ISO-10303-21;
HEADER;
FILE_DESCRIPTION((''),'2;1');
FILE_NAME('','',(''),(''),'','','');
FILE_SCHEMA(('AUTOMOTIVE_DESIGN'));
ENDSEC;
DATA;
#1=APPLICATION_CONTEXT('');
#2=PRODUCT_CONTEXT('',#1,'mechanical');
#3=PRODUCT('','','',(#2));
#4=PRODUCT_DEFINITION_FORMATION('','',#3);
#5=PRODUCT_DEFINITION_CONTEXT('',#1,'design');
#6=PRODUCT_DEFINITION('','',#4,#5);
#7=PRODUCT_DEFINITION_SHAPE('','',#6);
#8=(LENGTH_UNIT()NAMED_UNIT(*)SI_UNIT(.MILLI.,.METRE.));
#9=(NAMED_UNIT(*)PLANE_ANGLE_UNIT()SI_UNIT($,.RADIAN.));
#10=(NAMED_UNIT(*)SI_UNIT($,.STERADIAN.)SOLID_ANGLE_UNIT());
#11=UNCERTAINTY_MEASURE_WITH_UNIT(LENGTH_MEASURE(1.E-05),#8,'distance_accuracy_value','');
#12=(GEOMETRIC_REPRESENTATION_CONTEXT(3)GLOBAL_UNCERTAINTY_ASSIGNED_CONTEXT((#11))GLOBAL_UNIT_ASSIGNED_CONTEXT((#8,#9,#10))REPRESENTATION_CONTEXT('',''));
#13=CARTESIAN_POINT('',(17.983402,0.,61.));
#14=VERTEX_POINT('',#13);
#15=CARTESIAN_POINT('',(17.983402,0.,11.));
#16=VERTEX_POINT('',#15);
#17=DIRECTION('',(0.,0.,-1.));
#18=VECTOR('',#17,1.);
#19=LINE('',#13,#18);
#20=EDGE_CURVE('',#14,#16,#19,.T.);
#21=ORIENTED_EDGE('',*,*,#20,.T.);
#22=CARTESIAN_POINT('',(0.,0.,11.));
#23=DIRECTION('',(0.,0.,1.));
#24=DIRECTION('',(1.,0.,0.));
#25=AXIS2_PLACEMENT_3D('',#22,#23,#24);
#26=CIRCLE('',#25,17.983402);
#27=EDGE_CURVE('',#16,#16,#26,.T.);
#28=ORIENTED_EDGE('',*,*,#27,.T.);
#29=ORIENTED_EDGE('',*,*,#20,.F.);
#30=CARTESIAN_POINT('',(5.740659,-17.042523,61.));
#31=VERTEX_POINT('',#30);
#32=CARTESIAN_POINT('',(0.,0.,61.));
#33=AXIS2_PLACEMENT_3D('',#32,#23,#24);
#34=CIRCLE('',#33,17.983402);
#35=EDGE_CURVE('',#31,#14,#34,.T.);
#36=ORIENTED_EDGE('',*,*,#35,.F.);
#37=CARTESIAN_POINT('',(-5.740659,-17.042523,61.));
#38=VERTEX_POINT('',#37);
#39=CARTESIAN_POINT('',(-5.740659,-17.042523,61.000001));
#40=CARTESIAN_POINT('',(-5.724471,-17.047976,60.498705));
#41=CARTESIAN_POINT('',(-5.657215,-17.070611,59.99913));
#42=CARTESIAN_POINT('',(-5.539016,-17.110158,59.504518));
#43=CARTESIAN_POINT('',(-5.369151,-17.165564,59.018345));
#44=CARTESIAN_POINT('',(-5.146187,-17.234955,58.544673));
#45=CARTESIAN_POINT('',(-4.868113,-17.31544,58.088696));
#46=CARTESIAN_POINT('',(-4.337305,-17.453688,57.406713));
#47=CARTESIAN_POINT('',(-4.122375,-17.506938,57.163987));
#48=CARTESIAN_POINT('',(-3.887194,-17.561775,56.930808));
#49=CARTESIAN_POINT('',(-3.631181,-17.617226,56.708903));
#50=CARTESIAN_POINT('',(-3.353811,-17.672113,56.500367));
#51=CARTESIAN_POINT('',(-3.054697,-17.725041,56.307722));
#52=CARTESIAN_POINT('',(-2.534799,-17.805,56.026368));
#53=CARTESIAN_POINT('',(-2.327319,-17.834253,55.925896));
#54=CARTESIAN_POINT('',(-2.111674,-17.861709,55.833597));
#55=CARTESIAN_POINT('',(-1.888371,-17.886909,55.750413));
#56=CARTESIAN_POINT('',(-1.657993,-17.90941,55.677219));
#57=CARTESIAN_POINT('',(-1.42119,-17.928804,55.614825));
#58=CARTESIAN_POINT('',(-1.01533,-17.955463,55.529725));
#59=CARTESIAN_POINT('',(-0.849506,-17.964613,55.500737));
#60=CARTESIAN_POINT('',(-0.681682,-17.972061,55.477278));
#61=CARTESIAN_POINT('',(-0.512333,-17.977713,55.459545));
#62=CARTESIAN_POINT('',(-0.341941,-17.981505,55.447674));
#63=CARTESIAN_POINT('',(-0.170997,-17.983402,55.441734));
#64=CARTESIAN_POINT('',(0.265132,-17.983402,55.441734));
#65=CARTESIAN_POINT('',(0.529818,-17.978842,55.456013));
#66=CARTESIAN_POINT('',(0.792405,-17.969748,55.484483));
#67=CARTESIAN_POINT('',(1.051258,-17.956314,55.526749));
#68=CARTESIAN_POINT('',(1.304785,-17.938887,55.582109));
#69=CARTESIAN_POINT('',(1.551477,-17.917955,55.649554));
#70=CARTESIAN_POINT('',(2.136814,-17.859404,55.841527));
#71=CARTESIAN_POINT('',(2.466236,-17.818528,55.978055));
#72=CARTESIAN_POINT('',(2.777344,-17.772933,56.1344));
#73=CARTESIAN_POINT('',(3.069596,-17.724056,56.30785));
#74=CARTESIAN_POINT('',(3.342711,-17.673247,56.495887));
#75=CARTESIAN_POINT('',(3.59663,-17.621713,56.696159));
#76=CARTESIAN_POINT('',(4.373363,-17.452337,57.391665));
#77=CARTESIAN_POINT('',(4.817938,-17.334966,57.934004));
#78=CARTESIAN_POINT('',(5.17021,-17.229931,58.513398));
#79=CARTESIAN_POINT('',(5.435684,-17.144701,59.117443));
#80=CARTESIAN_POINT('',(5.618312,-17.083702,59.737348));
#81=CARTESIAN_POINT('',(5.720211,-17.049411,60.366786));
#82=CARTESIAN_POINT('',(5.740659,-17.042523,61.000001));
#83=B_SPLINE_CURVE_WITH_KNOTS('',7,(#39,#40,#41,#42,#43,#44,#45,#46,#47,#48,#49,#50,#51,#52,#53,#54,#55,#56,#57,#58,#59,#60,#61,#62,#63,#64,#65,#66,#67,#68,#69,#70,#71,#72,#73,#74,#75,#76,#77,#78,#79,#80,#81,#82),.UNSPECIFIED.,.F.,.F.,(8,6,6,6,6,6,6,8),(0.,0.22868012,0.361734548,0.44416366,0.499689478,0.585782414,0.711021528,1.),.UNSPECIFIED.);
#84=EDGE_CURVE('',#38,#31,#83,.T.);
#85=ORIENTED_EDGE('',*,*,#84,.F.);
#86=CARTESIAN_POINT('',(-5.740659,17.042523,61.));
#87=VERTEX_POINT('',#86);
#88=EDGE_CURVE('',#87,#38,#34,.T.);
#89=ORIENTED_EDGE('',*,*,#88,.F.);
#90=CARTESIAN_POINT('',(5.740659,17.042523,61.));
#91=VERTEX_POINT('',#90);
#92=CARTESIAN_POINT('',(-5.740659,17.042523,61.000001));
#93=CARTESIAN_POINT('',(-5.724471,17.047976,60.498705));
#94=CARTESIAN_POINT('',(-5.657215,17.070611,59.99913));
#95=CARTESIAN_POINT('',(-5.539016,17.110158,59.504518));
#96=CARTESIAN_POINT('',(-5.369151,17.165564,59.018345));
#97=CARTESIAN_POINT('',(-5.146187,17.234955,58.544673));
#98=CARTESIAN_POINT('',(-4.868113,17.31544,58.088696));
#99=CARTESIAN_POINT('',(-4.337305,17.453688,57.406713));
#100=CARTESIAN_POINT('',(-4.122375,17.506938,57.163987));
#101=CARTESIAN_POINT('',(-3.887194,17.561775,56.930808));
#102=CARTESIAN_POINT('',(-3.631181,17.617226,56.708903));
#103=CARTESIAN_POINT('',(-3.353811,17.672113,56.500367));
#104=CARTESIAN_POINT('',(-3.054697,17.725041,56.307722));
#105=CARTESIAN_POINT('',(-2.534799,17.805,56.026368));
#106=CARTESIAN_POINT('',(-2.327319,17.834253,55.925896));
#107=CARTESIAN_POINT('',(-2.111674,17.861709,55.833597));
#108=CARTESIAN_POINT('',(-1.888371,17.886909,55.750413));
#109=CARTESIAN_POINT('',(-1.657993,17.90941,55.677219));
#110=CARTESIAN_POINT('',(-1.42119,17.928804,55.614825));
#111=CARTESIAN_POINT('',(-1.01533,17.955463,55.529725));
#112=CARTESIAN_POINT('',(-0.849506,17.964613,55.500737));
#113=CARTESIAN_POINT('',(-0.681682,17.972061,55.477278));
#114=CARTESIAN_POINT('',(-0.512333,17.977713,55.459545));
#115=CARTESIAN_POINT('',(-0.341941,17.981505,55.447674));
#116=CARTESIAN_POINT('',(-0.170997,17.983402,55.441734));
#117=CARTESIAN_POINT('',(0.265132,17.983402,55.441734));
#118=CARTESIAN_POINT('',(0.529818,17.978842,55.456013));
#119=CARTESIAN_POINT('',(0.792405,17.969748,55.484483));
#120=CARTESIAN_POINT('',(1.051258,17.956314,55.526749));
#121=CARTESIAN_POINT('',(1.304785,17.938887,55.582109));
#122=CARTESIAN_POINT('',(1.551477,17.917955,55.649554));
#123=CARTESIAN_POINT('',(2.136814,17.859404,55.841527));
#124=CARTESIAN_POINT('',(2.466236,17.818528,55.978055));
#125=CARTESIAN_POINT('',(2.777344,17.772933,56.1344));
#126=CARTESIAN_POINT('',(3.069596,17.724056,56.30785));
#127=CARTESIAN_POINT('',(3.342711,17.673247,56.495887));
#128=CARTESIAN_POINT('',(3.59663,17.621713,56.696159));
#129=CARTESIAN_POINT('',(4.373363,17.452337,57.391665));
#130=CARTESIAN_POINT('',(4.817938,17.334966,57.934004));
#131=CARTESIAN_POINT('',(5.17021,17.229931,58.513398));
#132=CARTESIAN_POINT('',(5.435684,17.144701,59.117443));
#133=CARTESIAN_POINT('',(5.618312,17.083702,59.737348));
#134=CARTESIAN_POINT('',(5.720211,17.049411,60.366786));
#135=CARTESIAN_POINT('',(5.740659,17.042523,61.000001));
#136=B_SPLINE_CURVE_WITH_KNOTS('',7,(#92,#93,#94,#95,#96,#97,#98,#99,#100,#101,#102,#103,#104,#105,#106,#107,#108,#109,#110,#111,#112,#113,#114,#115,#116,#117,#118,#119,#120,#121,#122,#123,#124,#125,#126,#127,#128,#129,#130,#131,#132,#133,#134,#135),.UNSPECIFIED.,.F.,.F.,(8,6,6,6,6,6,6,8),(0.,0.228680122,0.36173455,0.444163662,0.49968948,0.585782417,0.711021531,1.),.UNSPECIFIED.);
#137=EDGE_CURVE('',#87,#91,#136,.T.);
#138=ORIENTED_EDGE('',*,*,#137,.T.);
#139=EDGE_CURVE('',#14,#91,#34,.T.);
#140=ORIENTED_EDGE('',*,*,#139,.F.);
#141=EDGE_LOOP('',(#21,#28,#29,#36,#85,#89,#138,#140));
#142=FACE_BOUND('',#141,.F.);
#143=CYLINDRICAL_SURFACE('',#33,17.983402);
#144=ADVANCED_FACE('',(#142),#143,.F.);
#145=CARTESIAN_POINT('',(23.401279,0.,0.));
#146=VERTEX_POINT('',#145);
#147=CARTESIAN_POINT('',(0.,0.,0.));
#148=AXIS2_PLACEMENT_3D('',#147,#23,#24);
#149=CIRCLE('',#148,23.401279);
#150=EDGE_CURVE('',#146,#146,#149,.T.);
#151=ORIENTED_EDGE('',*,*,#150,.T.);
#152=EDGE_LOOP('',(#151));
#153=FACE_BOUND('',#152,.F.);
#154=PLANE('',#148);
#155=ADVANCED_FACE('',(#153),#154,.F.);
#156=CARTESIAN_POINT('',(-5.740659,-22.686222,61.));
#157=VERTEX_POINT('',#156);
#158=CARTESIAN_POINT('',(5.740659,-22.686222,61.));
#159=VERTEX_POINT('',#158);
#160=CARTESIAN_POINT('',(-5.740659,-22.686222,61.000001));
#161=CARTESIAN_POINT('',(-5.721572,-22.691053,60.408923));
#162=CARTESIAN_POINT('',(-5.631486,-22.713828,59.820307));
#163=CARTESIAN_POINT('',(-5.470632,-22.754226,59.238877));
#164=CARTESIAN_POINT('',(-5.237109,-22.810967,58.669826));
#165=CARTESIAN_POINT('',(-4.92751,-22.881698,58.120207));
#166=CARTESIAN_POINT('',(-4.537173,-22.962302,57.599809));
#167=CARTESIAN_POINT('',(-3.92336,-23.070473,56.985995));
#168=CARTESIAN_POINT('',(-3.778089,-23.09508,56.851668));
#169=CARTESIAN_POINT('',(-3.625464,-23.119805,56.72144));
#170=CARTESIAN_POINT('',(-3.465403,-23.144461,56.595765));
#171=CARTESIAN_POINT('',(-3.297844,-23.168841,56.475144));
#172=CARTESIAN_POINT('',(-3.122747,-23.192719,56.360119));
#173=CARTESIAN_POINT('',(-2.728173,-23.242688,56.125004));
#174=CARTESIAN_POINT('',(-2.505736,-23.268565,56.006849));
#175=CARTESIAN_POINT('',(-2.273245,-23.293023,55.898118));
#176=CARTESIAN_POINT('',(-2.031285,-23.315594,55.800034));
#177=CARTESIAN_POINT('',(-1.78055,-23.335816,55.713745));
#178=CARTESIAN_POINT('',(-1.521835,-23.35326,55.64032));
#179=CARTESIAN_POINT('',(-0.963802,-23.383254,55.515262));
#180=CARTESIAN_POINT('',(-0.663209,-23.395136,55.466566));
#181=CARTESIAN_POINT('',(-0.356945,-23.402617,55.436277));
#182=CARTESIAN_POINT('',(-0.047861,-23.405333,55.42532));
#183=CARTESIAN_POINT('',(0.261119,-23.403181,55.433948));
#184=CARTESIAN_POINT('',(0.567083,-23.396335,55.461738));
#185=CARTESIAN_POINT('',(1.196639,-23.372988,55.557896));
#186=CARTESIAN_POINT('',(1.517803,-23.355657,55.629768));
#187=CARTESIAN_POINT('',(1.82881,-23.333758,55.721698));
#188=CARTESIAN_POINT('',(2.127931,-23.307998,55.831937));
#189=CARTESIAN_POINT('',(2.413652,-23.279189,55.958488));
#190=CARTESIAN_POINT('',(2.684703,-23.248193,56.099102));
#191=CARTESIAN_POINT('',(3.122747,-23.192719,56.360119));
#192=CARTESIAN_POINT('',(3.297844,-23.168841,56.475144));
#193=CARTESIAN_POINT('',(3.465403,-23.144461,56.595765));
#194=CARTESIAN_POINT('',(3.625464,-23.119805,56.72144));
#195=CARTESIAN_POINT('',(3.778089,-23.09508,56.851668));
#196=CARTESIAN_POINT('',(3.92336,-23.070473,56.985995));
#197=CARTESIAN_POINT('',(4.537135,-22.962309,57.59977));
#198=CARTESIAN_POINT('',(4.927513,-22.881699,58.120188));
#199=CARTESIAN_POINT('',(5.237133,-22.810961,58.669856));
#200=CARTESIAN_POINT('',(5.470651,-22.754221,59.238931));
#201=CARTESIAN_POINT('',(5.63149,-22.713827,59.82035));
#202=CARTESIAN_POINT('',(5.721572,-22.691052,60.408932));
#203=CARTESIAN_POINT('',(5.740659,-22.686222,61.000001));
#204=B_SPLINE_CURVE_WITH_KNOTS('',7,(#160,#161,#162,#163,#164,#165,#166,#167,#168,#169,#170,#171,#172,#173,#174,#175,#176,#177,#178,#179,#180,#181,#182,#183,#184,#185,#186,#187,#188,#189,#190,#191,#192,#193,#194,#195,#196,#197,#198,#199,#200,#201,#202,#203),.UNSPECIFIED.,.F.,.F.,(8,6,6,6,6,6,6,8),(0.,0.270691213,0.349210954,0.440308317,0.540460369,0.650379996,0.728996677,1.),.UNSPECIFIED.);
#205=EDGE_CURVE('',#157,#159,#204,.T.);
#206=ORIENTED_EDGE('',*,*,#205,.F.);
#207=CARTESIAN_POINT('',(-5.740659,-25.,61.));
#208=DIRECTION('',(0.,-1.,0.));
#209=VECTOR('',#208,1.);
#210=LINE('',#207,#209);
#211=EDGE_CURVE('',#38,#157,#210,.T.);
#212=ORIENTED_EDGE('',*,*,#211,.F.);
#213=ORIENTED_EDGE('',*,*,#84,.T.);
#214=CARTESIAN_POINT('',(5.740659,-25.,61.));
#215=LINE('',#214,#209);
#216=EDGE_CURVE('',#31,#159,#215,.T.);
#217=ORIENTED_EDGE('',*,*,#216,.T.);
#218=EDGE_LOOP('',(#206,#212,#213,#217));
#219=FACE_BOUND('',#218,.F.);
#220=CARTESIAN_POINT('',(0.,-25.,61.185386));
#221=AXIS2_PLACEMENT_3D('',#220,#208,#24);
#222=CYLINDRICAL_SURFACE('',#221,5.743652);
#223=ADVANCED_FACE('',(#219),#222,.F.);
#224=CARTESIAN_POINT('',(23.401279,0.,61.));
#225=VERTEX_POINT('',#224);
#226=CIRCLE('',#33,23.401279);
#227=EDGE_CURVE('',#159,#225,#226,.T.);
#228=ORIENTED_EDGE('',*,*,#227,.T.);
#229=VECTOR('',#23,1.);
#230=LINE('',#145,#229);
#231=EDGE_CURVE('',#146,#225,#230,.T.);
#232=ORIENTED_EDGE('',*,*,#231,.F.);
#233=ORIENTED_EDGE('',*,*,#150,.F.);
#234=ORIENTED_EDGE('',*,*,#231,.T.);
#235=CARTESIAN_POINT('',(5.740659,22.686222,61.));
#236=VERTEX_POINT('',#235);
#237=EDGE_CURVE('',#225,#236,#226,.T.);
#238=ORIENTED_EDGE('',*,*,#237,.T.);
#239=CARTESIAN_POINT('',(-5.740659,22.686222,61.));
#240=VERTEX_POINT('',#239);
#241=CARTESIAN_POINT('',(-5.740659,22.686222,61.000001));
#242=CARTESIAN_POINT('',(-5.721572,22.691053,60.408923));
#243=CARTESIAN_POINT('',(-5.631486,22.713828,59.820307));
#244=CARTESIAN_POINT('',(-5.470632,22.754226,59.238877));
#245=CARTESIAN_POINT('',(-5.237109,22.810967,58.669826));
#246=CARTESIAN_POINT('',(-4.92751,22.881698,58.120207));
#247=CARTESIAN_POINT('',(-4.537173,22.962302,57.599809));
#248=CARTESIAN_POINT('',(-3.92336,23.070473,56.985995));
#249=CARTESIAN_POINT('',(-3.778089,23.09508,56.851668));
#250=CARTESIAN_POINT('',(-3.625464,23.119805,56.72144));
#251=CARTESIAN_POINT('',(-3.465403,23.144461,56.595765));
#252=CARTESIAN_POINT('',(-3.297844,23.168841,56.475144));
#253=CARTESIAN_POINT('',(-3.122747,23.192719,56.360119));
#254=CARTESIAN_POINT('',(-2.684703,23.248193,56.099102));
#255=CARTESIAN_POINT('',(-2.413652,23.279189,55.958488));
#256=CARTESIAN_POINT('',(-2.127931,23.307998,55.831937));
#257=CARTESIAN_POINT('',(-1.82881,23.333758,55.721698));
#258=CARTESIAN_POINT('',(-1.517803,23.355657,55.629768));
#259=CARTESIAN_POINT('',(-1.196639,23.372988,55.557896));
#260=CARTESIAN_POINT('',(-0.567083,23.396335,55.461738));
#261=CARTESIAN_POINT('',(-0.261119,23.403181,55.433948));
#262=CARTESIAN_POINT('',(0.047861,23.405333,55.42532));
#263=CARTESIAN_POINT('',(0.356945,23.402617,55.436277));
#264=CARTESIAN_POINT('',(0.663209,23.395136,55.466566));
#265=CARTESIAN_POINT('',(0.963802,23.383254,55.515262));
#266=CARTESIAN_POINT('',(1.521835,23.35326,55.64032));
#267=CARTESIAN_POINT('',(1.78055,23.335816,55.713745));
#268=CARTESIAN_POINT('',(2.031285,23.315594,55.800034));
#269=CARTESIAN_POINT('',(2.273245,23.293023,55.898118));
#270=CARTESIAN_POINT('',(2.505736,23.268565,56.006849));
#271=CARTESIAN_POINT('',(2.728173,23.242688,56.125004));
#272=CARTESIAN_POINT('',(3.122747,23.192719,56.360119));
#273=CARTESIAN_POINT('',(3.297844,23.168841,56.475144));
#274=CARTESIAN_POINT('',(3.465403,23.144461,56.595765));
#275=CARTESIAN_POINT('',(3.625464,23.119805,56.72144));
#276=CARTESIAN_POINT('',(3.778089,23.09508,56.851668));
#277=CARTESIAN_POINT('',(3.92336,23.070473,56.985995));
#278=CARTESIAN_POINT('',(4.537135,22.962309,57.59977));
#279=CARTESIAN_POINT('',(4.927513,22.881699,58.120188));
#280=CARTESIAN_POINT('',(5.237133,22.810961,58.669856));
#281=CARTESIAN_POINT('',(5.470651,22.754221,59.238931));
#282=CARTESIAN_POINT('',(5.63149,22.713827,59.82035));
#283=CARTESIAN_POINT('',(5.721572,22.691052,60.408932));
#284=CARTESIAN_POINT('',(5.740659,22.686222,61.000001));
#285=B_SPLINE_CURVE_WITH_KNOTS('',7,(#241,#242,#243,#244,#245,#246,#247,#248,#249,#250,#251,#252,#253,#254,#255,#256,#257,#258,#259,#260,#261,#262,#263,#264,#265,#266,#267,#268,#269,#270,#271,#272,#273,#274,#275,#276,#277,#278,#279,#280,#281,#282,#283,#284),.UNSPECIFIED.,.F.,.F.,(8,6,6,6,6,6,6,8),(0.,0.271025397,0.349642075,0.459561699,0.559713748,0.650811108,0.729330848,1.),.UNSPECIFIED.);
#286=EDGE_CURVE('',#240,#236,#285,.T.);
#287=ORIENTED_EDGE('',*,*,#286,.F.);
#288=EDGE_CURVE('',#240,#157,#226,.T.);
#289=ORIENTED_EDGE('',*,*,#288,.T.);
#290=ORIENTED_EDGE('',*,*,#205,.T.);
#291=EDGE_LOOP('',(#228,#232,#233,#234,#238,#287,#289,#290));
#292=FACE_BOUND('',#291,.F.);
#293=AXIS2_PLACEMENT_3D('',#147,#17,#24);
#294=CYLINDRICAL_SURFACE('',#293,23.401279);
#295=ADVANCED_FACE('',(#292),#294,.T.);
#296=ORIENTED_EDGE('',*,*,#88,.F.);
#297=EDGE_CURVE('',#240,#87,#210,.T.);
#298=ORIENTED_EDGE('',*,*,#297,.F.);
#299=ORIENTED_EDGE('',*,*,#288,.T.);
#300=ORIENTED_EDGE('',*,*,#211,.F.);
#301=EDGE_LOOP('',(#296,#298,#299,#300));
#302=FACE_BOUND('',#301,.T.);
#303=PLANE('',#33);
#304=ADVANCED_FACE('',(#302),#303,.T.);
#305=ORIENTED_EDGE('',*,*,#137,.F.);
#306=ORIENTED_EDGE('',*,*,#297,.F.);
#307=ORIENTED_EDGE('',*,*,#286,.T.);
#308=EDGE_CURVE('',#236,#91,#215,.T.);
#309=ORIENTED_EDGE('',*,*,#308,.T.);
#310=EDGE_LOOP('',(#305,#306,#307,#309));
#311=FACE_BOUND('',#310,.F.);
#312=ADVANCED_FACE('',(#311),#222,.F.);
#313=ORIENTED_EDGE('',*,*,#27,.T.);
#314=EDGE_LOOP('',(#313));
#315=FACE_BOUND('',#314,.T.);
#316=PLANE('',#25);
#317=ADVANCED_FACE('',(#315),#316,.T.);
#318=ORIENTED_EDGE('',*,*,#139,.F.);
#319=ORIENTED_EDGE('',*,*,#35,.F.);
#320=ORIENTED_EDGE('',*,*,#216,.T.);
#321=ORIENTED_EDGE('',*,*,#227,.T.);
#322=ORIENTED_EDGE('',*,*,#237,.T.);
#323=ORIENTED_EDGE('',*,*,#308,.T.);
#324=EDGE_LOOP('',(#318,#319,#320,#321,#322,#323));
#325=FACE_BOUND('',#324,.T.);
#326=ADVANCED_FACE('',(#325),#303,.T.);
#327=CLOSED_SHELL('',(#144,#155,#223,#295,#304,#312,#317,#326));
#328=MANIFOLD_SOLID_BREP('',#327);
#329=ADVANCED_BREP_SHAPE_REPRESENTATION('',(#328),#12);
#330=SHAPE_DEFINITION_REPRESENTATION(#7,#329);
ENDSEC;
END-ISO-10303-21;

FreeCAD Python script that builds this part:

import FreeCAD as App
import Part
import Sketcher

doc = App.newDocument("Part")
body = doc.addObject("PartDesign::Body", "Body")

# Sketch on XY plane
sketch1 = body.newObject("Sketcher::SketchObject", "Sketch")
sketch1.AttachmentSupport = (doc.getObject("XY_Plane"), [""])
sketch1.MapMode = "FlatFace"
sketch1.addGeometry(Part.Circle(App.Vector(0, 0, 0), App.Vector(0, 0, 1), 23.401279), False)
sketch1.addConstraint(Sketcher.Constraint("Coincident", 0, 3, -1, 1))
sketch1.addConstraint(Sketcher.Constraint("Diameter", 0, 46.802558))
pad1 = body.newObject("PartDesign::Pad", "Pad")
pad1.Profile = sketch1
pad1.Length = 61

# Sketch on XY plane
sketch2 = body.newObject("Sketcher::SketchObject", "Sketch001")
sketch2.AttachmentSupport = (doc.getObject("XY_Plane"), [""])
sketch2.MapMode = "FlatFace"
sketch2.AttachmentOffset = App.Placement(App.Vector(0, 0, 61), App.Rotation())
sketch2.addGeometry(Part.Circle(App.Vector(0, 0, 0), App.Vector(0, 0, 1), 17.983402), False)
sketch2.addConstraint(Sketcher.Constraint("Coincident", 0, 3, -1, 1))
sketch2.addConstraint(Sketcher.Constraint("Diameter", 0, 35.966804))
pocket1 = body.newObject("PartDesign::Pocket", "Pocket")
pocket1.Profile = sketch2
pocket1.Length = 50

# Sketch on XZ plane
sketch3 = body.newObject("Sketcher::SketchObject", "Sketch002")
sketch3.AttachmentSupport = (doc.getObject("XZ_Plane"), [""])
sketch3.MapMode = "FlatFace"
sketch3.AttachmentOffset = App.Placement(App.Vector(0, 0, 25), App.Rotation())
sketch3.addGeometry(Part.Circle(App.Vector(0, 61.185386, 0), App.Vector(0, 0, 1), 5.743652), False)
sketch3.addConstraint(Sketcher.Constraint("PointOnObject", 0, 3, -2))
sketch3.addConstraint(Sketcher.Constraint("Diameter", 0, 11.487304))
sketch3.addConstraint(Sketcher.Constraint("DistanceY", -1, 1, 0, 3, 61.185386))
pocket2 = body.newObject("PartDesign::Pocket", "Pocket001")
pocket2.Profile = sketch3
pocket2.Length = 63.5

doc.recompute()
